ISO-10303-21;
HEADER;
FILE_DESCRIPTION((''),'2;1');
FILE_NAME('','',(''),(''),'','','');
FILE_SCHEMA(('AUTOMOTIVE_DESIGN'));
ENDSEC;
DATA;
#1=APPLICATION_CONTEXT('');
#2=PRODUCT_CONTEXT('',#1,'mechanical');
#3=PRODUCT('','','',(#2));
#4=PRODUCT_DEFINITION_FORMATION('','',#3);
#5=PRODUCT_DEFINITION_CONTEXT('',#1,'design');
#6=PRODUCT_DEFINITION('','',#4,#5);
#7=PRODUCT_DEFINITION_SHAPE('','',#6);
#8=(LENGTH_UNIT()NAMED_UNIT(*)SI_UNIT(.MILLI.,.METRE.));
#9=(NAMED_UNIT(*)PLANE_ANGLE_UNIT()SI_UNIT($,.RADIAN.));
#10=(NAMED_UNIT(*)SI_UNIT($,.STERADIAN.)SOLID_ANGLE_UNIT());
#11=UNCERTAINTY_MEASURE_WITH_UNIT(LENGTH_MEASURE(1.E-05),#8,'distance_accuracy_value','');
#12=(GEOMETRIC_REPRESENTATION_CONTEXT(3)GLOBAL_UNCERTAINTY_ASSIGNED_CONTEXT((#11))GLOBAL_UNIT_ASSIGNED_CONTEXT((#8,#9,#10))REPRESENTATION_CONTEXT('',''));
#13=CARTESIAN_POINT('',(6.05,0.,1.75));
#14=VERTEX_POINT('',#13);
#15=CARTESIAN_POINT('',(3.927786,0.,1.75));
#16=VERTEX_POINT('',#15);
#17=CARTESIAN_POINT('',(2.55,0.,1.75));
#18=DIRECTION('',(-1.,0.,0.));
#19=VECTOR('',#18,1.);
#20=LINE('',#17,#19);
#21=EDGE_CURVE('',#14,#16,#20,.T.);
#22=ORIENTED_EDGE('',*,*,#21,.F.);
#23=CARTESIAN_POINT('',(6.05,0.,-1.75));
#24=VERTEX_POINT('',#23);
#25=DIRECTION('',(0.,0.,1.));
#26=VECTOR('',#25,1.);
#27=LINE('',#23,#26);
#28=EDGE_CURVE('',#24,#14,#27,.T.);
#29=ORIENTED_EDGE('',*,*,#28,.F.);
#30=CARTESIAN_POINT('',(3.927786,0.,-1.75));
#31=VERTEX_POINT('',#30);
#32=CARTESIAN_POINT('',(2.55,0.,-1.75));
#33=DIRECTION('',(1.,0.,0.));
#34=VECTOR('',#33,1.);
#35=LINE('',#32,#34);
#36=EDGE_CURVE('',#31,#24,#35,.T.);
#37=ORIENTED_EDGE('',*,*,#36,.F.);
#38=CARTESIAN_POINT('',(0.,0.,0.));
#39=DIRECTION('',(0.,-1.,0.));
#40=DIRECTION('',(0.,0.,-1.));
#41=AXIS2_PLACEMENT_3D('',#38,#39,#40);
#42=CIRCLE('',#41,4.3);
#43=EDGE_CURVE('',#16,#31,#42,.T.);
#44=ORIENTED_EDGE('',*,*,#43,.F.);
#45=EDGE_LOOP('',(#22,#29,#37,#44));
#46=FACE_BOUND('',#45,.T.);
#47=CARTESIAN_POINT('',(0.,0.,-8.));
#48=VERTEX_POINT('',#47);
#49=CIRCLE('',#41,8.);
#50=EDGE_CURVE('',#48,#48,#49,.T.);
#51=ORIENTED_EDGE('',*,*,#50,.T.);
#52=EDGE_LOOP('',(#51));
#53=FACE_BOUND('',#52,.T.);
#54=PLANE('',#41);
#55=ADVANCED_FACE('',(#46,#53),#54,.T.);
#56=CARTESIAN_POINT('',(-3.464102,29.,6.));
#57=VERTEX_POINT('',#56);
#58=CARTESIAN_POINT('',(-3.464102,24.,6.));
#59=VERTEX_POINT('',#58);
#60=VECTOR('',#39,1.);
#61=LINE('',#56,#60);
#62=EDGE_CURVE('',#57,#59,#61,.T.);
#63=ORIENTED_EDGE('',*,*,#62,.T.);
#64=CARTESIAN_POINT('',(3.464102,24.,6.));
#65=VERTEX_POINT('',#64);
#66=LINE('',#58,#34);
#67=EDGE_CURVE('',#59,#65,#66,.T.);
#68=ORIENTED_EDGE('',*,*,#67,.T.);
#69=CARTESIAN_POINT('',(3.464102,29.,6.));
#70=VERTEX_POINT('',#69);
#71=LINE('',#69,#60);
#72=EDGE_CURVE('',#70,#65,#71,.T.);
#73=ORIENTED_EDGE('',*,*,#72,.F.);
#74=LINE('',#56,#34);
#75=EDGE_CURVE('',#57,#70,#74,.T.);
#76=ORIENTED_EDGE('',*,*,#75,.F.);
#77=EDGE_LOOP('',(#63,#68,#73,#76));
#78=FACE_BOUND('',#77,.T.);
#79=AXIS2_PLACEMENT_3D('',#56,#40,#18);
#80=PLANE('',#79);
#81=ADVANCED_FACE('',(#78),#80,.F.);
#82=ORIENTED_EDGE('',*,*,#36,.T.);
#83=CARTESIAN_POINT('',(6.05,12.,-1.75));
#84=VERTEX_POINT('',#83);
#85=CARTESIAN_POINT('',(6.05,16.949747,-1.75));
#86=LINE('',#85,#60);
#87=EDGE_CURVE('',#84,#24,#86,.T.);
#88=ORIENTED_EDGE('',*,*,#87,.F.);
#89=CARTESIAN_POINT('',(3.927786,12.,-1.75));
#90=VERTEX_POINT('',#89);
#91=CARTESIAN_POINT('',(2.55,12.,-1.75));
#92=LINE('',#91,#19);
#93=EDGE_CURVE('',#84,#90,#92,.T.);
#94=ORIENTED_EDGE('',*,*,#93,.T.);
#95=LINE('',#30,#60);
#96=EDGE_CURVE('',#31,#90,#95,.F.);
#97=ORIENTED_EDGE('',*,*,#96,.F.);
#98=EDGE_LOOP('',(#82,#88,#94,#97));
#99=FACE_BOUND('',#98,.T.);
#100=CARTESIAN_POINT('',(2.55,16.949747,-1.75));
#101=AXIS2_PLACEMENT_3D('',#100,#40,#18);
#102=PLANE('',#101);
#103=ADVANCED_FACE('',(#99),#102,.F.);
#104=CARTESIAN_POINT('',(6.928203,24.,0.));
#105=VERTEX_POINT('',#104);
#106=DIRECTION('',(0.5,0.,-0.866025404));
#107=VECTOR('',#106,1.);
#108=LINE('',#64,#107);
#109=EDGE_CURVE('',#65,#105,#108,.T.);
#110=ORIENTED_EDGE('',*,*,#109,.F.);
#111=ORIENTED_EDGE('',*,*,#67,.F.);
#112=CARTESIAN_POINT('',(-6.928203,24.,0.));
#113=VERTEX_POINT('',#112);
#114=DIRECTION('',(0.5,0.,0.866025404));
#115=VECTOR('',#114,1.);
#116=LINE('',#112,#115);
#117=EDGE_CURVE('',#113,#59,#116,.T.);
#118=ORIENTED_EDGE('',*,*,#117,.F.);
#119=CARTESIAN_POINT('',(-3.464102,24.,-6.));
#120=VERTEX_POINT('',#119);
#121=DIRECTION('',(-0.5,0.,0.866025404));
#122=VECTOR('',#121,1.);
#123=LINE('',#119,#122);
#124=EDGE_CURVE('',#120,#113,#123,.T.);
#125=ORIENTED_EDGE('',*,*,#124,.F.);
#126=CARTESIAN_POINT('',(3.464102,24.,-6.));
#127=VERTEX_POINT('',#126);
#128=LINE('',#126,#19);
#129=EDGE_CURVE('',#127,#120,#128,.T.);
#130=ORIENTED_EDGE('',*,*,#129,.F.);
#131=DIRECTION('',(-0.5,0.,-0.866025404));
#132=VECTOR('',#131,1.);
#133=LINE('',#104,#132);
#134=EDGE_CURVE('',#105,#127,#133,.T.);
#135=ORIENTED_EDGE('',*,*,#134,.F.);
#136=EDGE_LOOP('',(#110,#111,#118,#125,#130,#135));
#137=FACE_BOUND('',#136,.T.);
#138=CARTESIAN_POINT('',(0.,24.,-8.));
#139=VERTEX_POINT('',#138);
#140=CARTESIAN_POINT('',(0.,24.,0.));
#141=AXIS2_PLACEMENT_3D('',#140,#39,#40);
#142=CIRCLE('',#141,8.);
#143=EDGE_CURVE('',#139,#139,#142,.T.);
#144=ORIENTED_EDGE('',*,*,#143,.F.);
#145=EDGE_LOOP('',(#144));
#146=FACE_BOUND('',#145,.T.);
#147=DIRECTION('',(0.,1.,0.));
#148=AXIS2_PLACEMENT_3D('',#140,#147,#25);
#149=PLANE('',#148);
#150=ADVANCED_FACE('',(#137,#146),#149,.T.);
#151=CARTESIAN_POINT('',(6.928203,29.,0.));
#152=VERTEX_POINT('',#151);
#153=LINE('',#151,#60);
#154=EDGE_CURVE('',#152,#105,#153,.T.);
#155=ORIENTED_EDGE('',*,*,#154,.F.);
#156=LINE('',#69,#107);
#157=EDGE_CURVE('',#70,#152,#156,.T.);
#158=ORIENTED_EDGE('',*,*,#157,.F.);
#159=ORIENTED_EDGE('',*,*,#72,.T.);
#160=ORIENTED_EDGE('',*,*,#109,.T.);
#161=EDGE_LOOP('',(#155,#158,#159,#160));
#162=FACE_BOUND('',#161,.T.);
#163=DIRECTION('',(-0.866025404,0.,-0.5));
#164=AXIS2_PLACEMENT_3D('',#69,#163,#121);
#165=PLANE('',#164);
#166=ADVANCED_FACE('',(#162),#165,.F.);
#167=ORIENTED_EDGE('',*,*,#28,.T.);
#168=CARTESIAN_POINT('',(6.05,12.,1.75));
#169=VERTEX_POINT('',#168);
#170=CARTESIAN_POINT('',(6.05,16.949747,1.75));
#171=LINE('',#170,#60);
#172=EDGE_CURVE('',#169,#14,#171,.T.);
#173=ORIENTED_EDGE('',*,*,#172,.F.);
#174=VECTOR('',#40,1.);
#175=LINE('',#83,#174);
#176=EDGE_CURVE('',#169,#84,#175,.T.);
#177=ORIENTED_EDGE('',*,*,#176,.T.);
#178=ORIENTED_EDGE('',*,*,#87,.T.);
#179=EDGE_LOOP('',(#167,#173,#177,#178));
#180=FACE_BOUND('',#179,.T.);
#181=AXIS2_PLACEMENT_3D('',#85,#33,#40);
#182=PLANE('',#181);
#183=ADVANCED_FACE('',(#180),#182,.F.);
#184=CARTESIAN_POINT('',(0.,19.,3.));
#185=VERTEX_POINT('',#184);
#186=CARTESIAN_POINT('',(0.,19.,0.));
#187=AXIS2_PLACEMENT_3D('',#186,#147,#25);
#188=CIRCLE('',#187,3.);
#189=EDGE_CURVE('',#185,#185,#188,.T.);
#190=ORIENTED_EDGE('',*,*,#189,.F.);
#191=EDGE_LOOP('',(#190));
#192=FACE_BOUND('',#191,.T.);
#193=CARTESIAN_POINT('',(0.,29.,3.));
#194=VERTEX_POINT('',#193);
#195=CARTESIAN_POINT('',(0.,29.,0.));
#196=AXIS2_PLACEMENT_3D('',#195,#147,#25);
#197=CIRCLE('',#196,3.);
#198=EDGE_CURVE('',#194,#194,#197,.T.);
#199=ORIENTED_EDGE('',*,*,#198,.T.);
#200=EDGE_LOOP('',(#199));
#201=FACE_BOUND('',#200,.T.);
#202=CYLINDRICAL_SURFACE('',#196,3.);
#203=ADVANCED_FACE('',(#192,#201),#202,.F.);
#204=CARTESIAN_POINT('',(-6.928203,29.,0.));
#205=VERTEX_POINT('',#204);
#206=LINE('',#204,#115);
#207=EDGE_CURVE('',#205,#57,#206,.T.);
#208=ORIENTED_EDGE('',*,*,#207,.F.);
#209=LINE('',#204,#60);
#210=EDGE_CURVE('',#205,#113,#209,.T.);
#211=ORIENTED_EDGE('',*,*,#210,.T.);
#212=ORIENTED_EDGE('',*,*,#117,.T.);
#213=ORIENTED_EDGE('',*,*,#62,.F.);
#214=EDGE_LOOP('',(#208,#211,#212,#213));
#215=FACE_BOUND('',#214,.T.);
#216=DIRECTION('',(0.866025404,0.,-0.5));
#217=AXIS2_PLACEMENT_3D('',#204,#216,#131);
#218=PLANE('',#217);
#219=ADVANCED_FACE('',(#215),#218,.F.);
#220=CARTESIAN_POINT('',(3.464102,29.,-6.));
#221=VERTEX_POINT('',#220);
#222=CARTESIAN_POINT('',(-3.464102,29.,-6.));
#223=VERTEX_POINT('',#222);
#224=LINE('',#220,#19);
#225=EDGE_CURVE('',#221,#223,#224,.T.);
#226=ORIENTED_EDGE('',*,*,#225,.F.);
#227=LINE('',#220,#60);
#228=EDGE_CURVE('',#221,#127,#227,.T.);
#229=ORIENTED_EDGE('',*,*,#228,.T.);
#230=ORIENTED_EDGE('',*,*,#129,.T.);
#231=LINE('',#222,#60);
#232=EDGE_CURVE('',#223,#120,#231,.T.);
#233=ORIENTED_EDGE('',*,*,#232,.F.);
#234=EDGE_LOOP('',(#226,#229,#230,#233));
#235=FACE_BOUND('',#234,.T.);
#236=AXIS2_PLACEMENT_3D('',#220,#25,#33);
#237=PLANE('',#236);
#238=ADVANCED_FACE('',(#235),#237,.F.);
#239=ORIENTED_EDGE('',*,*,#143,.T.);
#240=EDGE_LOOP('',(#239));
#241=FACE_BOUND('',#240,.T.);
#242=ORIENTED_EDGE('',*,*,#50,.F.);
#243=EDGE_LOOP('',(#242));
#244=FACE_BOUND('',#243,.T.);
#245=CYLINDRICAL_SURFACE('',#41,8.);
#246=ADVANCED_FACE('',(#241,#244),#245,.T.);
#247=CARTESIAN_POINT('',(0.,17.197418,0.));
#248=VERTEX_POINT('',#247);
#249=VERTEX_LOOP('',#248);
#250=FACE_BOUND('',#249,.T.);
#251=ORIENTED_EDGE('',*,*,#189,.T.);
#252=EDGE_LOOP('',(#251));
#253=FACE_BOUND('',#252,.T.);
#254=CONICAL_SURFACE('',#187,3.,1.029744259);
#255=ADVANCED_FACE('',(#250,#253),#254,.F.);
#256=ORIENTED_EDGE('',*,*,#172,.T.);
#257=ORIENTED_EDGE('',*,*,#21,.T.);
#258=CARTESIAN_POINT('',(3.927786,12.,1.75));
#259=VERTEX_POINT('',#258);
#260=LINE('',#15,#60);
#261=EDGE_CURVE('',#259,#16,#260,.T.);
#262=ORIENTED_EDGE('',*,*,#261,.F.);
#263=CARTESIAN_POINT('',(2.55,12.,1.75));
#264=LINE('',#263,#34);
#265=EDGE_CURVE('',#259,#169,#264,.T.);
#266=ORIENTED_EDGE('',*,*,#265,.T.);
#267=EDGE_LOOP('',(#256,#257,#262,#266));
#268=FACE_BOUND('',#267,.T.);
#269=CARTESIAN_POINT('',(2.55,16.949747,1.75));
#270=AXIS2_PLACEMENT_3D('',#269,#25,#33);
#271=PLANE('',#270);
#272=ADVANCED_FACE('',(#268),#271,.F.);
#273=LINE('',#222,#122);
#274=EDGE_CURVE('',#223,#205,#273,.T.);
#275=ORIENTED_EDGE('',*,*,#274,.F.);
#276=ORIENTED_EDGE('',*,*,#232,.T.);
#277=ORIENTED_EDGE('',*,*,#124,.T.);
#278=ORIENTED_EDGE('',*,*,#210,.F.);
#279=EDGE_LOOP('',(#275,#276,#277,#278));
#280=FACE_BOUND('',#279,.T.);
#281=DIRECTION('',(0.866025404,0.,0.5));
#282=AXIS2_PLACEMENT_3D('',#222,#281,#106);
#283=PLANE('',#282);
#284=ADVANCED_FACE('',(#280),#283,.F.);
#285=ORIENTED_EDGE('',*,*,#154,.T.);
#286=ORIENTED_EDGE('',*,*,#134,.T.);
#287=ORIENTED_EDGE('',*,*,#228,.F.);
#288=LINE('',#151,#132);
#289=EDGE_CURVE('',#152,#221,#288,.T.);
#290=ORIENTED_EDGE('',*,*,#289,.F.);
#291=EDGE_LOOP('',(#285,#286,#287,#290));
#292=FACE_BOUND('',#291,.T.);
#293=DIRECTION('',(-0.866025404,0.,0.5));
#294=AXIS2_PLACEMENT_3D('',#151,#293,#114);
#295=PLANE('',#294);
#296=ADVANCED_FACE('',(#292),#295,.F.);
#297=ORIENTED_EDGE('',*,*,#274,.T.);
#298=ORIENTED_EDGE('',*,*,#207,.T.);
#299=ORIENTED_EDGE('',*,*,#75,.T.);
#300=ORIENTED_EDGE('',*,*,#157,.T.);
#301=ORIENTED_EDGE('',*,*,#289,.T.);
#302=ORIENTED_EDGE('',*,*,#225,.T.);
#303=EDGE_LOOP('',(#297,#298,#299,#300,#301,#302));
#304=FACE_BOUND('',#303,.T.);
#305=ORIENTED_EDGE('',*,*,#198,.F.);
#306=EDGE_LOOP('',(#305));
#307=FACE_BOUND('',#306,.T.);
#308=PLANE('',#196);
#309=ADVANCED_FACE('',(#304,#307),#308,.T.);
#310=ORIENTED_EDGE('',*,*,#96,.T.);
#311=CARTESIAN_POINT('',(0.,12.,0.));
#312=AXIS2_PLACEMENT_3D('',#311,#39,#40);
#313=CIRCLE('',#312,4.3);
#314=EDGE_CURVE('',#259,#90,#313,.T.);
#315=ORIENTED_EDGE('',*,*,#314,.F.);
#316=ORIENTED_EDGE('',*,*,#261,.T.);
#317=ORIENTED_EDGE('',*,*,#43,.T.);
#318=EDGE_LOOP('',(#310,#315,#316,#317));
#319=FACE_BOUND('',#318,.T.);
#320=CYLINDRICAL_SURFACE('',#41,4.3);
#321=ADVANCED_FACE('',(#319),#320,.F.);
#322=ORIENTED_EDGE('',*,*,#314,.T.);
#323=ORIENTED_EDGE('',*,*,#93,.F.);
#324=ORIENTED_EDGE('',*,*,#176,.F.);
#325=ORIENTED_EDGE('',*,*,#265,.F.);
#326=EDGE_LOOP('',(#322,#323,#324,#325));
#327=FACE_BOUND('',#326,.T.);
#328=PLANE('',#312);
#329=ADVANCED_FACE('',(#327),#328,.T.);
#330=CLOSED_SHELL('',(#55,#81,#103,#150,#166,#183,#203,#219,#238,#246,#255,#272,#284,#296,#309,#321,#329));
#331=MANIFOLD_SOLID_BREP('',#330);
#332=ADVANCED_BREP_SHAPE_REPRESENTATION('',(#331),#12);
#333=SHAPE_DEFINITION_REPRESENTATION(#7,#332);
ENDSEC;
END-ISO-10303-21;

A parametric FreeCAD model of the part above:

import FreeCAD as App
import Part
import Sketcher

V = App.Vector
Q = App.Units.Quantity

doc = App.newDocument("Part")
params = doc.addObject("Spreadsheet::Sheet", "Params")
for row, (alias, value) in enumerate([
    ("sketch1_width", "8 mm"),
    ("sketch1_height", "12 mm"),
    ("sketch1_width2", "3.7 mm"),
    ("revolution_angle", "360 deg"),
    ("pad1_length", "5 mm"),
    ("sketch3_diameter", "6 mm"),
    ("hole_diameter", "6 mm"),
    ("hole_depth", "10 mm"),
    ("sketch4_width", "3.5 mm"),
    ("pocket1_length", "12 mm"),
], start=1):
    params.set(f"A{row}", alias)
    params.set(f"B{row}", "=" + value)
    params.setAlias(f"B{row}", alias)

body = doc.addObject("PartDesign::Body", "Body")

sketch1 = body.newObject("Sketcher::SketchObject", "Sketch")
sketch1.AttachmentSupport = (doc.getObject("XY_Plane"), [""])
sketch1.MapMode = "FlatFace"
sketch1.addGeometry(Part.LineSegment(V(4.3, 12, 0), V(4.3, 0, 0)), False)
sketch1.addGeometry(Part.LineSegment(V(4.3, 0, 0), V(8, 0, 0)), False)
sketch1.addGeometry(Part.LineSegment(V(8, 0, 0), V(8, 24, 0)), False)
sketch1.addGeometry(Part.LineSegment(V(8, 24, 0), V(0, 24, 0)), False)
sketch1.addGeometry(Part.LineSegment(V(0, 24, 0), V(0, 12, 0)), False)
sketch1.addGeometry(Part.LineSegment(V(0, 12, 0), V(4.3, 12, 0)), False)
sketch1.addConstraint(Sketcher.Constraint("Coincident", 0, 2, 1, 1))
sketch1.addConstraint(Sketcher.Constraint("Coincident", 1, 2, 2, 1))
sketch1.addConstraint(Sketcher.Constraint("Coincident", 2, 2, 3, 1))
sketch1.addConstraint(Sketcher.Constraint("Coincident", 3, 2, 4, 1))
sketch1.addConstraint(Sketcher.Constraint("Coincident", 4, 2, 5, 1))
sketch1.addConstraint(Sketcher.Constraint("Coincident", 5, 2, 0, 1))
sketch1.addConstraint(Sketcher.Constraint("Vertical", 0))
sketch1.addConstraint(Sketcher.Constraint("Horizontal", 1))
sketch1.addConstraint(Sketcher.Constraint("Vertical", 2))
sketch1.addConstraint(Sketcher.Constraint("Horizontal", 3))
sketch1.addConstraint(Sketcher.Constraint("Vertical", 4))
sketch1.addConstraint(Sketcher.Constraint("Horizontal", 5))
sketch1.addConstraint(Sketcher.Constraint("PointOnObject", 0, 2, -1))
sketch1.addConstraint(Sketcher.Constraint("PointOnObject", 3, 2, -2))
sketch1.addConstraint(Sketcher.Constraint("Equal", 0, 4))
sketch1.addConstraint(Sketcher.Constraint("DistanceX", 3, 2, 3, 1, Q("8 mm")))
sketch1.addConstraint(Sketcher.Constraint("DistanceY", 0, 2, 0, 1, Q("12 mm")))
sketch1.addConstraint(Sketcher.Constraint("DistanceX", 1, 1, 1, 2, Q("3.7 mm")))
sketch1.setExpression("Constraints[15]", "Params.sketch1_width")
sketch1.setExpression("Constraints[16]", "Params.sketch1_height")
sketch1.setExpression("Constraints[17]", "Params.sketch1_width2")
revolution = body.newObject("PartDesign::Revolution", "Revolution")
revolution.Profile = sketch1
revolution.ReferenceAxis = (sketch1, ["V_Axis"])
revolution.setExpression("Angle", "Params.revolution_angle")

sketch2 = body.newObject("Sketcher::SketchObject", "Sketch001")
sketch2.AttachmentSupport = (doc.getObject("XZ_Plane"), [""])
sketch2.MapMode = "FlatFace"
sketch2.AttachmentOffset = App.Placement(V(0, 0, -24), App.Rotation())
sketch2.addGeometry(Part.LineSegment(V(6.928203, 0, 0), V(3.464102, -6, 0)), False)
sketch2.addGeometry(Part.LineSegment(V(3.464102, -6, 0), V(-3.464102, -6, 0)), False)
sketch2.addGeometry(Part.LineSegment(V(-3.464102, -6, 0), V(-6.928203, 0, 0)), False)
sketch2.addGeometry(Part.LineSegment(V(-6.928203, 0, 0), V(-3.464102, 6, 0)), False)
sketch2.addGeometry(Part.LineSegment(V(-3.464102, 6, 0), V(3.464102, 6, 0)), False)
sketch2.addGeometry(Part.LineSegment(V(3.464102, 6, 0), V(6.928203, 0, 0)), False)
sketch2.addConstraint(Sketcher.Constraint("Coincident", 0, 2, 1, 1))
sketch2.addConstraint(Sketcher.Constraint("Coincident", 1, 2, 2, 1))
sketch2.addConstraint(Sketcher.Constraint("Coincident", 2, 2, 3, 1))
sketch2.addConstraint(Sketcher.Constraint("Coincident", 3, 2, 4, 1))
sketch2.addConstraint(Sketcher.Constraint("Coincident", 4, 2, 5, 1))
sketch2.addConstraint(Sketcher.Constraint("Coincident", 5, 2, 0, 1))
sketch2.addConstraint(Sketcher.Constraint("Horizontal", 1))
sketch2.addConstraint(Sketcher.Constraint("Horizontal", 4))
sketch2.addConstraint(Sketcher.Constraint("Symmetric", 0, 2, 3, 2, -1, 1))
sketch2.addConstraint(Sketcher.Constraint("Symmetric", 2, 2, 5, 2, -1, 1))
sketch2.addConstraint(Sketcher.Constraint("PointOnObject", 2, 2, -1))
sketch2.addConstraint(Sketcher.Constraint("Parallel", 2, 5))
sketch2.addConstraint(Sketcher.Constraint("Vertical", 1, 2, 3, 2))
sketch2.addConstraint(Sketcher.Constraint("Angle", 0, Q("-120 deg")))
sketch2.addConstraint(Sketcher.Constraint("DistanceY", 0, 2, -1, 1, Q("6 mm")))
sketch2.addConstraint(Sketcher.Constraint("DistanceX", -1, 1, 0, 2, Q("3.464102 mm")))
pad1 = body.newObject("PartDesign::Pad", "Pad")
pad1.Profile = sketch2
pad1.setExpression("Length", "Params.pad1_length")
pad1.Reversed = True

sketch3 = body.newObject("Sketcher::SketchObject", "Sketch002")
sketch3.AttachmentSupport = (doc.getObject("XZ_Plane"), [""])
sketch3.MapMode = "FlatFace"
sketch3.AttachmentOffset = App.Placement(V(0, 0, -29), App.Rotation())
sketch3.addGeometry(Part.Circle(V(0, 0, 0), V(0, 0, 1), 3), False)
sketch3.addConstraint(Sketcher.Constraint("Coincident", 0, 3, -1, 1))
sketch3.addConstraint(Sketcher.Constraint("Diameter", 0, Q("6 mm")))
sketch3.setExpression("Constraints[1]", "Params.sketch3_diameter")
doc.recompute()
hole = body.newObject("PartDesign::Hole", "Hole")
hole.Profile = sketch3
hole.ThreadType = "None"
hole.setExpression("Diameter", "Params.hole_diameter")
hole.DepthType = "Dimension"
hole.setExpression("Depth", "Params.hole_depth")
hole.DrillPoint = "Angled"
hole.DrillPointAngle = 118
hole.Reversed = True

sketch4 = body.newObject("Sketcher::SketchObject", "Sketch003")
sketch4.AttachmentSupport = (doc.getObject("XZ_Plane"), [""])
sketch4.MapMode = "FlatFace"
sketch4.AttachmentOffset = App.Placement(V(0, 0, -12), App.Rotation())
sketch4.addGeometry(Part.LineSegment(V(2.55, 1.75, 0), V(2.55, -1.75, 0)), False)
sketch4.addGeometry(Part.LineSegment(V(2.55, -1.75, 0), V(6.05, -1.75, 0)), False)
sketch4.addGeometry(Part.LineSegment(V(6.05, -1.75, 0), V(6.05, 1.75, 0)), False)
sketch4.addGeometry(Part.LineSegment(V(6.05, 1.75, 0), V(2.55, 1.75, 0)), False)
sketch4.addConstraint(Sketcher.Constraint("Coincident", 0, 2, 1, 1))
sketch4.addConstraint(Sketcher.Constraint("Coincident", 1, 2, 2, 1))
sketch4.addConstraint(Sketcher.Constraint("Coincident", 2, 2, 3, 1))
sketch4.addConstraint(Sketcher.Constraint("Coincident", 3, 2, 0, 1))
sketch4.addConstraint(Sketcher.Constraint("Vertical", 0))
sketch4.addConstraint(Sketcher.Constraint("Horizontal", 1))
sketch4.addConstraint(Sketcher.Constraint("Vertical", 2))
sketch4.addConstraint(Sketcher.Constraint("Horizontal", 3))
sketch4.addConstraint(Sketcher.Constraint("Equal", 3, 0))
sketch4.addConstraint(Sketcher.Constraint("DistanceX", 1, 1, 1, 2, Q("3.5 mm")))
sketch4.addConstraint(Sketcher.Constraint("DistanceX", -1, 1, 0, 2, Q("2.55 mm")))
sketch4.addConstraint(Sketcher.Constraint("DistanceY", 0, 2, -1, 1, Q("1.75 mm")))
sketch4.setExpression("Constraints[9]", "Params.sketch4_width")
pocket1 = body.newObject("PartDesign::Pocket", "Pocket")
pocket1.Profile = sketch4
pocket1.setExpression("Length", "Params.pocket1_length")
pocket1.Reversed = True

doc.recompute()
